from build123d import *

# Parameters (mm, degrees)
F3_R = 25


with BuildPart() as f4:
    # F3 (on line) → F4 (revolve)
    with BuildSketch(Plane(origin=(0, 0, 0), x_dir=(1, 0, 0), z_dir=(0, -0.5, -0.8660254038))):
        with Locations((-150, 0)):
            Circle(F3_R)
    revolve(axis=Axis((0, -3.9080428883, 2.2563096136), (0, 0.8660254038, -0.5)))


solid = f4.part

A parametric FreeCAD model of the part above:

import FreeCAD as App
import Part
import Sketcher

doc = App.newDocument("Part")
body = doc.addObject("PartDesign::Body", "Body")

# Sketch on an angled plane
sketch1 = body.newObject("Sketcher::SketchObject", "Sketch")
sketch1.Placement = App.Placement(App.Vector(0, 0, 0), App.Rotation(App.Vector(1, 0, 0), App.Vector(0, -0.866025404, 0.5), App.Vector(0, -0.5, -0.866025404), "ZXY"))
sketch1.addGeometry(Part.Circle(App.Vector(-150, 0, 0), App.Vector(0, 0, 1), 25), False)
sketch1.addConstraint([
    Sketcher.Constraint("PointOnObject", 0, 3, -1),
    Sketcher.Constraint("Diameter", 0, 50.0),
    Sketcher.Constraint("DistanceX", 0, 3, -1, 1, 150.0),
])
revolution = body.newObject("PartDesign::Revolution", "Revolution")
revolution.Profile = sketch1
revolution.ReferenceAxis = (sketch1, ["V_Axis"])
revolution.Angle = 360

doc.recompute()
